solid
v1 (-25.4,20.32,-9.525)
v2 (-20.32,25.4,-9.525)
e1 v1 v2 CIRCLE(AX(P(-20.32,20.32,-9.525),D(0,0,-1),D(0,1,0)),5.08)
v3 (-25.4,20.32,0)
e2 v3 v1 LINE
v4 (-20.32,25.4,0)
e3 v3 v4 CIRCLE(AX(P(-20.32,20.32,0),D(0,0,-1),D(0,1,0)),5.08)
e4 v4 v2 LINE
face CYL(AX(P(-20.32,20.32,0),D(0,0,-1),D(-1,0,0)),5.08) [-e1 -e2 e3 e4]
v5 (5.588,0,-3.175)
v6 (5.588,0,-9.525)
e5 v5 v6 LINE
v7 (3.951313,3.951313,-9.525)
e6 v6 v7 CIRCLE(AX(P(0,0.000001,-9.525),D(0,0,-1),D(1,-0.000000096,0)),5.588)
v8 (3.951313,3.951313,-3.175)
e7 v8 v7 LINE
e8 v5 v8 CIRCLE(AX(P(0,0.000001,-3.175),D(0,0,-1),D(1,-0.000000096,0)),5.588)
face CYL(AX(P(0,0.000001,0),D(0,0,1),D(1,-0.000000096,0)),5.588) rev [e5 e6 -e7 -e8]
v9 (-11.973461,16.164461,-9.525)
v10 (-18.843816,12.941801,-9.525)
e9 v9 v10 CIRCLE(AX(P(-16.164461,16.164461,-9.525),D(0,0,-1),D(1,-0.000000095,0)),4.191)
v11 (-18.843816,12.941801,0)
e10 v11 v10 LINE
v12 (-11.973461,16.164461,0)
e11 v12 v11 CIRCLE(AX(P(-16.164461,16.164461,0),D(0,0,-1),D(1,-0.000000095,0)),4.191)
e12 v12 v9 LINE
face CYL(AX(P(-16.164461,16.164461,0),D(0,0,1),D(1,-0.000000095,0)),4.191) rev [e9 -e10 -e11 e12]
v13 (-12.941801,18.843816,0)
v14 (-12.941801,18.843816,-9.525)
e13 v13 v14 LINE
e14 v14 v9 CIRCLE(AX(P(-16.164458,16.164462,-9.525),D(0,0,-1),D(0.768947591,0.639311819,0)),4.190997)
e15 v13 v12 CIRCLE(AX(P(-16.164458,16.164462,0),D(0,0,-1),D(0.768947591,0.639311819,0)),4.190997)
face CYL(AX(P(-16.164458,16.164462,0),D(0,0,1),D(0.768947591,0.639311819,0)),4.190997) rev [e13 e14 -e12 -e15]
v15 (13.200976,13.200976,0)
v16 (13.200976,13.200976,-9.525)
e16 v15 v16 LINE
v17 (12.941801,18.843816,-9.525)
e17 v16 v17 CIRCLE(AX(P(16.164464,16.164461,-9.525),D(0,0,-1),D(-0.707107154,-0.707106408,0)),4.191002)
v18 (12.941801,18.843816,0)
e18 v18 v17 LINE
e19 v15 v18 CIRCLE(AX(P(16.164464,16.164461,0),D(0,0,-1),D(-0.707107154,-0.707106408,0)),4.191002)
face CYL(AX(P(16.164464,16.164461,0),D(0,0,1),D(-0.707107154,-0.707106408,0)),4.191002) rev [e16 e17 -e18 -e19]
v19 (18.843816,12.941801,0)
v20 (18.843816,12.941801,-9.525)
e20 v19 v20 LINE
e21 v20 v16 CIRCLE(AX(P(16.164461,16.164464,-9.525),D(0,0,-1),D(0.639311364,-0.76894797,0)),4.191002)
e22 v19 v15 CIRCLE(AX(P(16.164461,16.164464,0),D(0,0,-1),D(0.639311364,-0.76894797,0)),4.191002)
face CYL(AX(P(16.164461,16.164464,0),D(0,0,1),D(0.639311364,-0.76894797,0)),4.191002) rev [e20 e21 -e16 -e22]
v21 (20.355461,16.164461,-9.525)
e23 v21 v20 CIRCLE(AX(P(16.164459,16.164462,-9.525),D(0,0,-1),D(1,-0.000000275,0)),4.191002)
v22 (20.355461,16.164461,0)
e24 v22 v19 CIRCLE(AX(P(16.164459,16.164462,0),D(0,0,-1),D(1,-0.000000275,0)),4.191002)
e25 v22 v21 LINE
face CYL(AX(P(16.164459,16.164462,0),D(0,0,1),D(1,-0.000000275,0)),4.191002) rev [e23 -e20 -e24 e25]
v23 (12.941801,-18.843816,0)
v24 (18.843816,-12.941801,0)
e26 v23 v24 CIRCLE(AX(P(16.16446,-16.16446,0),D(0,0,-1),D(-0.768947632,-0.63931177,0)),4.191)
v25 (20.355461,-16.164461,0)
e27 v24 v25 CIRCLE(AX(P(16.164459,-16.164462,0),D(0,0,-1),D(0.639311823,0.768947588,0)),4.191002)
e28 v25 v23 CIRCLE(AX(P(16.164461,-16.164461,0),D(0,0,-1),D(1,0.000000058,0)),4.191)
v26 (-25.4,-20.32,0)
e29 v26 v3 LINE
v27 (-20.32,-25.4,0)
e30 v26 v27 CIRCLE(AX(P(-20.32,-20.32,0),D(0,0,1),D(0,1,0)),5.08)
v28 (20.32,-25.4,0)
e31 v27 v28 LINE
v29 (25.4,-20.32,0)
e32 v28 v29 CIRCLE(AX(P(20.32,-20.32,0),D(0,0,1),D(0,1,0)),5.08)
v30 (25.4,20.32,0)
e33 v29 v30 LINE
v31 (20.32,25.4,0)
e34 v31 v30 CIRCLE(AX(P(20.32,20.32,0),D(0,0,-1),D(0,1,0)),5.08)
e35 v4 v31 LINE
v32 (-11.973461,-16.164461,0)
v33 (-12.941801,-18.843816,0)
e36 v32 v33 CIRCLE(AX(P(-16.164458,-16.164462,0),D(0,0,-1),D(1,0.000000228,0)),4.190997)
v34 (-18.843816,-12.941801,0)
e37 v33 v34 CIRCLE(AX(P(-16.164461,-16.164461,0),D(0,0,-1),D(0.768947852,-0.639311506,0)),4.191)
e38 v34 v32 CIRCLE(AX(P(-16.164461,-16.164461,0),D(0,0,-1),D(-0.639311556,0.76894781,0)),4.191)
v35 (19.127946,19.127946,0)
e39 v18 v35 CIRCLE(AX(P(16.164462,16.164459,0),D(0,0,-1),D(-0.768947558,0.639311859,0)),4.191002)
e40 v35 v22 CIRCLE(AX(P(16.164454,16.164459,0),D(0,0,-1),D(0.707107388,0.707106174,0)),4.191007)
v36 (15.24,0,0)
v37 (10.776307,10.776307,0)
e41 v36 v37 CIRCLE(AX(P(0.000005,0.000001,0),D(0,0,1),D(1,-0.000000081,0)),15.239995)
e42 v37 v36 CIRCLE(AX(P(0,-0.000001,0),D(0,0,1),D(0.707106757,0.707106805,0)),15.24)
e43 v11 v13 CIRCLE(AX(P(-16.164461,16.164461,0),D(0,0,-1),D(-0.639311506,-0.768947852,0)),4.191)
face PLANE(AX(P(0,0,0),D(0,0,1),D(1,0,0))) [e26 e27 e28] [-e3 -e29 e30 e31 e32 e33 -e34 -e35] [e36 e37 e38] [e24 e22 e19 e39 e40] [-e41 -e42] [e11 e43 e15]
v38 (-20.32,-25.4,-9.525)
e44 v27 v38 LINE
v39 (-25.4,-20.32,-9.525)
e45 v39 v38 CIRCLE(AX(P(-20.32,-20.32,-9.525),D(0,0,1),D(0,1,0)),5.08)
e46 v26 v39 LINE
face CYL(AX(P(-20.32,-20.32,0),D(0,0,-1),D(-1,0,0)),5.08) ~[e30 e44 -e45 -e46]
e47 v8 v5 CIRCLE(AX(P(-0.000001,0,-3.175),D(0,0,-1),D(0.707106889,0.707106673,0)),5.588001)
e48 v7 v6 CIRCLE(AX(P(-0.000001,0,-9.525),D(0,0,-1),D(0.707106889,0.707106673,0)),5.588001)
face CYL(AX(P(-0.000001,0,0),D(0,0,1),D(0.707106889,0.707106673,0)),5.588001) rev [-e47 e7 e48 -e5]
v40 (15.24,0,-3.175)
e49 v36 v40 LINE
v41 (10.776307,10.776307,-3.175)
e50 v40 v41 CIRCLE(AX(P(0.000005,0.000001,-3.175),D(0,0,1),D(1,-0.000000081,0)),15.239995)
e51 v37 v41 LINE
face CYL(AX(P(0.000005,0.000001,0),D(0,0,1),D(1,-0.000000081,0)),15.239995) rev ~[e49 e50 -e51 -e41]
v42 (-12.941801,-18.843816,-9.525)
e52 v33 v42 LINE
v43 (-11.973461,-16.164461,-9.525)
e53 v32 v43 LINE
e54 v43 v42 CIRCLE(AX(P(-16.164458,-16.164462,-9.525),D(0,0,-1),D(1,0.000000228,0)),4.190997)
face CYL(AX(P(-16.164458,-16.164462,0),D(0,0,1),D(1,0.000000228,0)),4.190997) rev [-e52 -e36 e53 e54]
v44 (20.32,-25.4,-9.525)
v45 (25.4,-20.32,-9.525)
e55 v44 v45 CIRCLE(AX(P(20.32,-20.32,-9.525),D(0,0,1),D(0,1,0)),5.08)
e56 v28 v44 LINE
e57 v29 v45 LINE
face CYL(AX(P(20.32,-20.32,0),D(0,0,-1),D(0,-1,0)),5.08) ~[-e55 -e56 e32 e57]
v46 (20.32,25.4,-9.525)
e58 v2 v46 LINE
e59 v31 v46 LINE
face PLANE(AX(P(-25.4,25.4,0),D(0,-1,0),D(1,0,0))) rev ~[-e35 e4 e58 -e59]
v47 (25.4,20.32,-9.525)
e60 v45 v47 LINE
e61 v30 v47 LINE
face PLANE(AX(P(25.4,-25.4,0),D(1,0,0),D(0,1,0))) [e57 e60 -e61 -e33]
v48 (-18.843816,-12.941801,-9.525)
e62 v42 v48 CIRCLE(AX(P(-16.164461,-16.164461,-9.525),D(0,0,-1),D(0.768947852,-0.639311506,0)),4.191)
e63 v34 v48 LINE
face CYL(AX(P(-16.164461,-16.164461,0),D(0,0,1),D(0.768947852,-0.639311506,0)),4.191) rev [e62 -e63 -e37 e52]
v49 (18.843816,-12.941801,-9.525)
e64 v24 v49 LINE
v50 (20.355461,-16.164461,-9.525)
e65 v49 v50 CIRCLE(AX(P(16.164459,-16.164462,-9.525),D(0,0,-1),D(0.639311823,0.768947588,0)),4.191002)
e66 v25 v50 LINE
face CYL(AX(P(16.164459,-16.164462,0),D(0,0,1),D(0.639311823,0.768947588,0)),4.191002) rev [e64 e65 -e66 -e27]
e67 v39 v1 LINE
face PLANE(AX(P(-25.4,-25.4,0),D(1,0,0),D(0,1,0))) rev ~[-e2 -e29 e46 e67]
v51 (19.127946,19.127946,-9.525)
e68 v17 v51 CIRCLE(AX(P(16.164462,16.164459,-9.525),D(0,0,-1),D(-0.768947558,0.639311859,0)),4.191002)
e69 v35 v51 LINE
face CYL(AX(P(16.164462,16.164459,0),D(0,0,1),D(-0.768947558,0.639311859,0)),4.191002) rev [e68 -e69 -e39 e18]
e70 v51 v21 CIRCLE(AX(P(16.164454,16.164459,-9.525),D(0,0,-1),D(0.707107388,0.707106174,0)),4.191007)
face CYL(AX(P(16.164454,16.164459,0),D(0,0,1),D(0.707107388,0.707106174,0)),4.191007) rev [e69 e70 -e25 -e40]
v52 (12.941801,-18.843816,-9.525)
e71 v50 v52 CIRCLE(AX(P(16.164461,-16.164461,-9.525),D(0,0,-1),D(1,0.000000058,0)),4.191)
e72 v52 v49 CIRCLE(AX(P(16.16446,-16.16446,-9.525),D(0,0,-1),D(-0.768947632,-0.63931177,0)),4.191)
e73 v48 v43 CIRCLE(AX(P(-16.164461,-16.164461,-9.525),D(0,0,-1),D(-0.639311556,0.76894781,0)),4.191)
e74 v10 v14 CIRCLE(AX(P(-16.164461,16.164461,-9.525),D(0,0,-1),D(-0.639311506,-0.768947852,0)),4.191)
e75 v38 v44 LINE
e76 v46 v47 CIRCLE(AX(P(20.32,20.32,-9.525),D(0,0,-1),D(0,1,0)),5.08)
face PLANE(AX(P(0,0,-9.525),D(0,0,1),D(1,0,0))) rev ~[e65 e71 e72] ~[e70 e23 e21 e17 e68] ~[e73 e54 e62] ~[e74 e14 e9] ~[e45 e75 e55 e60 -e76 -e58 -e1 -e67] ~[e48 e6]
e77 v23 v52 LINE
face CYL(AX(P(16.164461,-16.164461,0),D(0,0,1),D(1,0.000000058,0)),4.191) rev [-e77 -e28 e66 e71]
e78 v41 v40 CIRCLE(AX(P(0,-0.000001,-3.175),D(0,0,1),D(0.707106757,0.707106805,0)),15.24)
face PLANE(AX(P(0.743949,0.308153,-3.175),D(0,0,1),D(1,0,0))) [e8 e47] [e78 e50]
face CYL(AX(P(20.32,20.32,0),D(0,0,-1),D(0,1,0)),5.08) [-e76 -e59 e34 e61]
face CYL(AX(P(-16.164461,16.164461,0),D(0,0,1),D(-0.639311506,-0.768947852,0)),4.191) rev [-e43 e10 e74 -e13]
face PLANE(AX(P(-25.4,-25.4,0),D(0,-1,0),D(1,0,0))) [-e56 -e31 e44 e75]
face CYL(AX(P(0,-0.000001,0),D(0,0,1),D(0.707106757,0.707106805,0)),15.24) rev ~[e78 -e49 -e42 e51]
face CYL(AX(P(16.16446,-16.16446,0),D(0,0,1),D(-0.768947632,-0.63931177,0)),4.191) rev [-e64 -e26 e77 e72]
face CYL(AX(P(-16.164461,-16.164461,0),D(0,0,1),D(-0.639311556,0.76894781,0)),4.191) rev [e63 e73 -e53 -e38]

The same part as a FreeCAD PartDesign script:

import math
import FreeCAD as App
import Part
import Sketcher
Q = App.Units.Quantity


def edges_at(feature, points):
    """Names of the edges that pass closest to the given points."""
    edges = feature.Shape.Edges
    near = lambda p: min(range(len(edges)), key=lambda i: edges[i].distToShape(Part.Vertex(*p))[0])
    return sorted({f"Edge{near(p) + 1}" for p in points})


def add_polygon(sketch, points):
    """Adds a closed chain of lines whose ends are joined by coincident constraints."""
    first, n = sketch.GeometryCount, len(points)
    for a, b in zip(points, points[1:] + points[:1]):
        sketch.addGeometry(Part.LineSegment(App.Vector(*a, 0), App.Vector(*b, 0)), False)
    for i in range(n):
        sketch.addConstraint(Sketcher.Constraint("Coincident", first + i, 2, first + (i + 1) % n, 1))

doc = App.newDocument("Part")
body = doc.addObject("PartDesign::Body", "Body")

sketch1 = body.newObject("Sketcher::SketchObject", "Sketch")
sketch1.AttachmentSupport = (doc.getObject("XY_Plane"), [""])
sketch1.MapMode = "FlatFace"
add_polygon(sketch1, [(-25.4, 25.4), (-25.4, -25.4), (25.4, -25.4), (25.4, 25.4)])
sketch1.addGeometry(Part.ArcOfCircle(Part.Circle(App.Vector(-16.2, -16.2, 0), App.Vector(0, 0, 1), 4.2), math.radians(130), math.radians(320)), False)
sketch1.addGeometry(Part.ArcOfCircle(Part.Circle(App.Vector(-16.2, -16.2, 0), App.Vector(0, 0, 1), 4.2), math.radians(0), math.radians(130)), False)
sketch1.addGeometry(Part.ArcOfCircle(Part.Circle(App.Vector(-16.2, -16.2, 0), App.Vector(0, 0, 1), 4.2), math.radians(-40), math.radians(0)), False)
sketch1.addGeometry(Part.ArcOfCircle(Part.Circle(App.Vector(16.2, -16.2, 0), App.Vector(0, 0, 1), 4.2), math.radians(-140), math.radians(0)), False)
sketch1.addGeometry(Part.ArcOfCircle(Part.Circle(App.Vector(16.2, -16.2, 0), App.Vector(0, 0, 1), 4.2), math.radians(50), math.radians(220)), False)
sketch1.addGeometry(Part.ArcOfCircle(Part.Circle(App.Vector(16.2, -16.2, 0), App.Vector(0, 0, 1), 4.2), math.radians(0), math.radians(50)), False)
sketch1.addGeometry(Part.ArcOfCircle(Part.Circle(App.Vector(-16.2, 16.2, 0), App.Vector(0, 0, 1), 4.2), math.radians(40), math.radians(230)), False)
sketch1.addGeometry(Part.ArcOfCircle(Part.Circle(App.Vector(-16.2, 16.2, 0), App.Vector(0, 0, 1), 4.2), math.radians(0), math.radians(40)), False)
sketch1.addGeometry(Part.ArcOfCircle(Part.Circle(App.Vector(-16.2, 16.2, 0), App.Vector(0, 0, 1), 4.2), math.radians(-130), math.radians(0)), False)
sketch1.addGeometry(Part.ArcOfCircle(Part.Circle(App.Vector(0, 0, 0), App.Vector(0, 0, 1), 5.6), math.radians(0), math.radians(45)), False)
sketch1.addGeometry(Part.ArcOfCircle(Part.Circle(App.Vector(0, 0, 0), App.Vector(0, 0, 1), 5.6), math.radians(45), math.radians(360)), False)
sketch1.addGeometry(Part.ArcOfCircle(Part.Circle(App.Vector(16.2, 16.2, 0), App.Vector(0, 0, 1), 4.2), math.radians(-50), math.radians(0)), False)
sketch1.addGeometry(Part.ArcOfCircle(Part.Circle(App.Vector(16.2, 16.2, 0), App.Vector(0, 0, 1), 4.2), math.radians(-135), math.radians(-50)), False)
sketch1.addGeometry(Part.ArcOfCircle(Part.Circle(App.Vector(16.2, 16.2, 0), App.Vector(0, 0, 1), 4.2), math.radians(140), math.radians(225)), False)
sketch1.addGeometry(Part.ArcOfCircle(Part.Circle(App.Vector(16.2, 16.2, 0), App.Vector(0, 0, 1), 4.2), math.radians(45), math.radians(140)), False)
sketch1.addGeometry(Part.ArcOfCircle(Part.Circle(App.Vector(16.2, 16.2, 0), App.Vector(0, 0, 1), 4.2), math.radians(0), math.radians(45)), False)
sketch1.addConstraint([
    Sketcher.Constraint("Tangent", 4, 1, 5, 2),
    Sketcher.Constraint("Tangent", 5, 1, 6, 2),
    Sketcher.Constraint("Tangent", 6, 1, 4, 2),
    Sketcher.Constraint("Tangent", 7, 1, 8, 2),
    Sketcher.Constraint("Tangent", 8, 1, 9, 2),
    Sketcher.Constraint("Tangent", 9, 1, 7, 2),
    Sketcher.Constraint("Tangent", 10, 1, 11, 2),
    Sketcher.Constraint("Tangent", 11, 1, 12, 2),
    Sketcher.Constraint("Tangent", 12, 1, 10, 2),
    Sketcher.Constraint("Tangent", 13, 1, 14, 2),
    Sketcher.Constraint("Coincident", 14, 1, 13, 2),
    Sketcher.Constraint("Tangent", 15, 1, 16, 2),
    Sketcher.Constraint("Tangent", 16, 1, 17, 2),
    Sketcher.Constraint("Tangent", 17, 1, 18, 2),
    Sketcher.Constraint("Tangent", 18, 1, 19, 2),
    Sketcher.Constraint("Tangent", 19, 1, 15, 2),
    Sketcher.Constraint("Vertical", 0),
    Sketcher.Constraint("Horizontal", 1),
    Sketcher.Constraint("Vertical", 2),
    Sketcher.Constraint("Horizontal", 3),
    Sketcher.Constraint("Coincident", 13, 3, -1, 1),
    Sketcher.Constraint("Coincident", 17, 3, 15, 3),
    Sketcher.Constraint("Equal", 5, 7),
    Sketcher.Constraint("Equal", 8, 10),
    Sketcher.Constraint("Equal", 9, 15),
    Sketcher.Constraint("Symmetric", 7, 3, 10, 3, -1, 1),
    Sketcher.Constraint("Symmetric", 4, 3, 15, 3, -1, 1),
    Sketcher.Constraint("Symmetric", 0, 2, 2, 2, -1, 1),
    Sketcher.Constraint("Symmetric", 4, 3, 7, 3, -2),
    Sketcher.Constraint("PointOnObject", 13, 1, -1),
    Sketcher.Constraint("Horizontal", 9, 3, 5, 1),
    Sketcher.Constraint("Horizontal", 6, 1, 7, 1),
    Sketcher.Constraint("Horizontal", 4, 1, 8, 1),
    Sketcher.Constraint("Horizontal", 5, 1, 9, 1),
    Sketcher.Constraint("Horizontal", 19, 3, 11, 1),
    Sketcher.Constraint("Horizontal", 12, 1, 15, 1),
    Sketcher.Constraint("Horizontal", 10, 1, 17, 1),
    Sketcher.Constraint("Horizontal", 11, 1, 19, 1),
    Sketcher.Constraint("Vertical", 6, 1, 10, 1),
    Sketcher.Constraint("Vertical", 4, 1, 12, 1),
    Sketcher.Constraint("Equal", 3, 0),
    Sketcher.Constraint("DistanceX", 1, 1, 1, 2, Q("2 in")),
    Sketcher.Constraint("Radius", 13, Q("0.22 in")),
    Sketcher.Constraint("Radius", 4, Q("0.165 in")),
    Sketcher.Constraint("DistanceY", 4, 1, -1, 1, Q("12.941801 mm")),
    Sketcher.Constraint("DistanceX", 6, 1, -1, 1, Q("12.941801 mm")),
    Sketcher.Constraint("DistanceX", 4, 3, -1, 1, Q("16.164461 mm")),
    Sketcher.Constraint("DistanceY", 4, 3, -1, 1, Q("16.164461 mm")),
    Sketcher.Constraint("DistanceX", 14, 1, 19, 3, Q("12.213141 mm")),
    Sketcher.Constraint("DistanceX", -1, 1, 16, 1, Q("13.200976 mm")),
    Sketcher.Constraint("DistanceX", -1, 1, 18, 1, Q("19.127946 mm")),
])
pad1 = body.newObject("PartDesign::Pad", "Pad")
pad1.Profile = sketch1
pad1.Length = Q("0.375 in")
pad1.Reversed = True

sketch2 = body.newObject("Sketcher::SketchObject", "Sketch001")
sketch2.AttachmentSupport = (doc.getObject("XY_Plane"), [""])
sketch2.MapMode = "FlatFace"
sketch2.addGeometry([
    Part.ArcOfCircle(Part.Circle(App.Vector(0, 0, 0), App.Vector(0, 0, 1), 15.2), math.radians(0), math.radians(45)),
    Part.ArcOfCircle(Part.Circle(App.Vector(0, 0, 0), App.Vector(0, 0, 1), 15.2), math.radians(45), math.radians(360)),
    Part.ArcOfCircle(Part.Circle(App.Vector(0, 0, 0), App.Vector(0, 0, 1), 5.6), math.radians(0), math.radians(45)),
    Part.ArcOfCircle(Part.Circle(App.Vector(0, 0, 0), App.Vector(0, 0, 1), 5.6), math.radians(45), math.radians(360)),
], False)
sketch2.addConstraint([
    Sketcher.Constraint("Tangent", 0, 1, 1, 2),
    Sketcher.Constraint("Coincident", 1, 1, 0, 2),
    Sketcher.Constraint("Tangent", 2, 1, 3, 2),
    Sketcher.Constraint("Coincident", 3, 1, 2, 2),
    Sketcher.Constraint("Coincident", 0, 3, -1, 1),
    Sketcher.Constraint("Coincident", 2, 3, -1, 1),
    Sketcher.Constraint("PointOnObject", 0, 1, -1),
    Sketcher.Constraint("PointOnObject", 2, 1, -1),
    Sketcher.Constraint("Radius", 0, Q("0.5999998 in")),
    Sketcher.Constraint("Radius", 2, Q("0.22 in")),
    Sketcher.Constraint("DistanceX", 2, 3, 1, 1, Q("10.776308 mm")),
    Sketcher.Constraint("DistanceX", 0, 3, 3, 1, Q("3.951308 mm")),
])
pocket1 = body.newObject("PartDesign::Pocket", "Pocket")
pocket1.Profile = sketch2
pocket1.Length = Q("0.125 in")
doc.recompute()

fillet = body.newObject("PartDesign::Fillet", "Fillet")
fillet.Base = (pocket1, edges_at(pocket1, [
    (-25.4, -25.4, -4.763),
    (25.4, -25.4, -4.763),
    (25.4, 25.4, -4.763),
    (-25.4, 25.4, -4.763),
]))
fillet.Radius = Q("0.2 in")

doc.recompute()
